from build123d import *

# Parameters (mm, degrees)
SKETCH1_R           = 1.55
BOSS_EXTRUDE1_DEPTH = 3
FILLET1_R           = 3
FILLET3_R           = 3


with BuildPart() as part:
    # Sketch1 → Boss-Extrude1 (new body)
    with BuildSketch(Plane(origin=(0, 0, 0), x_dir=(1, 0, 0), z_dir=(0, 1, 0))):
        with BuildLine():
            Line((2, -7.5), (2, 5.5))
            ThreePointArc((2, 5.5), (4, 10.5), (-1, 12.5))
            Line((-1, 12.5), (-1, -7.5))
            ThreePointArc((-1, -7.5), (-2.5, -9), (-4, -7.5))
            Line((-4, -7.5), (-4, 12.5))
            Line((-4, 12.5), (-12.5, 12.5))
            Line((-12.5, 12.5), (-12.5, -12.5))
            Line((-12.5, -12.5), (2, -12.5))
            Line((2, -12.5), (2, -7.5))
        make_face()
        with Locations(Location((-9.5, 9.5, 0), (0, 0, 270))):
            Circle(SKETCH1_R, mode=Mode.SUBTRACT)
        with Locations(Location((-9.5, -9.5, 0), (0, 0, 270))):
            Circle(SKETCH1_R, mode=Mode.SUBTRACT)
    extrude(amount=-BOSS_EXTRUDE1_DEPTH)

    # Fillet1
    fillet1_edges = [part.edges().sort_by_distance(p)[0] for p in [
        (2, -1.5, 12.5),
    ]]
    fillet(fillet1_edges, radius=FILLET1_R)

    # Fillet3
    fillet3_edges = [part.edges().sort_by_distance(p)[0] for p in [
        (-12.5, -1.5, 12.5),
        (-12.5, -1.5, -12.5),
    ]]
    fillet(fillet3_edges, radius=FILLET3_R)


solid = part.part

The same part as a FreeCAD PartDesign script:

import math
import FreeCAD as App
import Part
import Sketcher


def edges_at(feature, points):
    """Names of the edges that pass closest to the given points."""
    edges = feature.Shape.Edges
    near = lambda p: min(range(len(edges)), key=lambda i: edges[i].distToShape(Part.Vertex(*p))[0])
    return sorted({f"Edge{near(p) + 1}" for p in points})

doc = App.newDocument("Part")
body = doc.addObject("PartDesign::Body", "Body")

sketch1 = body.newObject("Sketcher::SketchObject", "Sketch")
sketch1.AttachmentSupport = (doc.getObject("XZ_Plane"), [""])
sketch1.MapMode = "FlatFace"
sketch1.addGeometry(Part.ArcOfCircle(Part.Circle(App.Vector(0.5, -9, 0), App.Vector(0, 0, 1), 3.8), math.radians(-113), math.radians(67)), False)
sketch1.addGeometry(Part.LineSegment(App.Vector(-1, -12.5, 0), App.Vector(-1, 7.5, 0)), False)
sketch1.addGeometry(Part.ArcOfCircle(Part.Circle(App.Vector(-2.5, 7.5, 0), App.Vector(0, 0, 1), 1.5), math.radians(0), math.radians(180)), False)
sketch1.addGeometry(Part.LineSegment(App.Vector(-4, 7.5, 0), App.Vector(-4, -12.5, 0)), False)
sketch1.addGeometry(Part.LineSegment(App.Vector(-4, -12.5, 0), App.Vector(-12.5, -12.5, 0)), False)
sketch1.addGeometry(Part.LineSegment(App.Vector(-12.5, -12.5, 0), App.Vector(-12.5, 12.5, 0)), False)
sketch1.addGeometry(Part.LineSegment(App.Vector(-12.5, 12.5, 0), App.Vector(2, 12.5, 0)), False)
sketch1.addGeometry(Part.LineSegment(App.Vector(2, 12.5, 0), App.Vector(2, -5.5, 0)), False)
sketch1.addGeometry(Part.Circle(App.Vector(-9.5, 9.5, 0), App.Vector(0, 0, 1), 1.6), False)
sketch1.addGeometry(Part.Circle(App.Vector(-9.5, -9.5, 0), App.Vector(0, 0, 1), 1.6), False)
sketch1.addConstraint(Sketcher.Constraint("Coincident", 0, 1, 1, 1))
sketch1.addConstraint(Sketcher.Constraint("Tangent", 1, 2, 2, 1))
sketch1.addConstraint(Sketcher.Constraint("Tangent", 2, 2, 3, 1))
sketch1.addConstraint(Sketcher.Constraint("Coincident", 3, 2, 4, 1))
sketch1.addConstraint(Sketcher.Constraint("Coincident", 4, 2, 5, 1))
sketch1.addConstraint(Sketcher.Constraint("Coincident", 5, 2, 6, 1))
sketch1.addConstraint(Sketcher.Constraint("Coincident", 6, 2, 7, 1))
sketch1.addConstraint(Sketcher.Constraint("Coincident", 7, 2, 0, 2))
sketch1.addConstraint(Sketcher.Constraint("Vertical", 1))
sketch1.addConstraint(Sketcher.Constraint("Vertical", 3))
sketch1.addConstraint(Sketcher.Constraint("Horizontal", 4))
sketch1.addConstraint(Sketcher.Constraint("Vertical", 5))
sketch1.addConstraint(Sketcher.Constraint("Horizontal", 6))
sketch1.addConstraint(Sketcher.Constraint("Vertical", 7))
sketch1.addConstraint(Sketcher.Constraint("Equal", 8, 9))
sketch1.addConstraint(Sketcher.Constraint("Symmetric", 8, 3, 9, 3, -1))
sketch1.addConstraint(Sketcher.Constraint("Horizontal", 0, 1, 3, 2))
sketch1.addConstraint(Sketcher.Constraint("Diameter", 8, 3.1))
sketch1.addConstraint(Sketcher.Constraint("Radius", 2, 1.5))
sketch1.addConstraint(Sketcher.Constraint("DistanceY", 1, 1, 1, 2, 20.0))
sketch1.addConstraint(Sketcher.Constraint("DistanceY", 5, 1, 5, 2, 25.0))
sketch1.addConstraint(Sketcher.Constraint("DistanceY", 7, 2, 7, 1, 18.0))
sketch1.addConstraint(Sketcher.Constraint("DistanceX", 4, 2, 4, 1, 8.5))
sketch1.addConstraint(Sketcher.Constraint("DistanceX", 6, 1, 6, 2, 14.5))
sketch1.addConstraint(Sketcher.Constraint("DistanceY", 0, 3, -1, 1, 9.0))
sketch1.addConstraint(Sketcher.Constraint("DistanceX", 0, 1, -1, 1, 1.0))
sketch1.addConstraint(Sketcher.Constraint("DistanceX", 2, 3, 0, 3, 3.0))
sketch1.addConstraint(Sketcher.Constraint("DistanceX", 8, 3, 2, 3, 7.0))
sketch1.addConstraint(Sketcher.Constraint("DistanceY", 2, 3, 8, 3, 2.0))
pad1 = body.newObject("PartDesign::Pad", "Pad")
pad1.Profile = sketch1
pad1.Length = 3
doc.recompute()

fillet = body.newObject("PartDesign::Fillet", "Fillet")
fillet.Base = (pad1, edges_at(pad1, [(2, -1.5, 12.5)]))
fillet.Radius = 3
doc.recompute()

fillet2 = body.newObject("PartDesign::Fillet", "Fillet001")
fillet2.Base = (fillet, edges_at(fillet, [(-12.5, -1.5, 12.5), (-12.5, -1.5, -12.5)]))
fillet2.Radius = 3

doc.recompute()
